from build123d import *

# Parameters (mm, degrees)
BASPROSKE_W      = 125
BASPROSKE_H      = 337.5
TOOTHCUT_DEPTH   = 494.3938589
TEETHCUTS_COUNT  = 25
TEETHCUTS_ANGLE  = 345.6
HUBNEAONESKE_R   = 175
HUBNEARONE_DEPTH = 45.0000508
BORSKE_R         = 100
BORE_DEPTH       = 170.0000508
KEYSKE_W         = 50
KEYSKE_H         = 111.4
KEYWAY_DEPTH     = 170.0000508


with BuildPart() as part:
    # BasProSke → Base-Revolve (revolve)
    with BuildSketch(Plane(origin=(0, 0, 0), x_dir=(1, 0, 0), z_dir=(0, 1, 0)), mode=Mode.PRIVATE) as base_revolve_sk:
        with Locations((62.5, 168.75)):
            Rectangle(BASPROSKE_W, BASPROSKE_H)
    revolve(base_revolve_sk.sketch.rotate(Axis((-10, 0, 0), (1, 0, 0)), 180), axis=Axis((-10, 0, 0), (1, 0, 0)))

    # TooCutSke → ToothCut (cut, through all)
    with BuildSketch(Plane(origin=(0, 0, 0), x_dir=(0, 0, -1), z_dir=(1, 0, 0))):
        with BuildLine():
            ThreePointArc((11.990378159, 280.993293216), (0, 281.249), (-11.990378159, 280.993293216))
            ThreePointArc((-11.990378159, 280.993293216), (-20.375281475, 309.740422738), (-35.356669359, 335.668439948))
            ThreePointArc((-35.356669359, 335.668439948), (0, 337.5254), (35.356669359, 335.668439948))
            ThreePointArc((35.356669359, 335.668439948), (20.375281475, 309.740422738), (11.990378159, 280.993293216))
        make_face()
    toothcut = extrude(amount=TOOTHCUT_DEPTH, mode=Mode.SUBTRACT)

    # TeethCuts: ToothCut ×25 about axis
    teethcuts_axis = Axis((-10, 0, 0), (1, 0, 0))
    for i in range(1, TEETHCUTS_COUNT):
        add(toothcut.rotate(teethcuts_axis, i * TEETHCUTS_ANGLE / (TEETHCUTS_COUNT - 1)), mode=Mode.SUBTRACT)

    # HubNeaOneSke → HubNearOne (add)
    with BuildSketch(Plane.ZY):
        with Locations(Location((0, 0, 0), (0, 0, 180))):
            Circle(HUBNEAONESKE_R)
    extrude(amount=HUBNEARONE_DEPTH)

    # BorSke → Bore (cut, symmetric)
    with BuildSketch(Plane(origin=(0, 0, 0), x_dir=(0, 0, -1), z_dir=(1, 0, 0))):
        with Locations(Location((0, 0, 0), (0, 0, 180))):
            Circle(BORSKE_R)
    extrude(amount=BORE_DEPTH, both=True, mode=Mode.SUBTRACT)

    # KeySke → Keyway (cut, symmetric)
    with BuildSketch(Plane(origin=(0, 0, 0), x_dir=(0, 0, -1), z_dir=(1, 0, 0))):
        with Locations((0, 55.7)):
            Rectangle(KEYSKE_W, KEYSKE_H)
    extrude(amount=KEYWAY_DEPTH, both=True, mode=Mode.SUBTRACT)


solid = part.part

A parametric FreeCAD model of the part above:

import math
import FreeCAD as App
import Part
import Sketcher

V = App.Vector


def add_polygon(sketch, points):
    """Adds a closed chain of lines whose ends are joined by coincident constraints."""
    first, n = sketch.GeometryCount, len(points)
    for a, b in zip(points, points[1:] + points[:1]):
        sketch.addGeometry(Part.LineSegment(App.Vector(*a, 0), App.Vector(*b, 0)), False)
    for i in range(n):
        sketch.addConstraint(Sketcher.Constraint("Coincident", first + i, 2, first + (i + 1) % n, 1))

doc = App.newDocument("Part")
body = doc.addObject("PartDesign::Body", "Body")

# Sketch on XZ plane
sketch1 = doc.addObject("Sketcher::SketchObject", "Sketch")
body.addObject(sketch1)
sketch1.AttachmentSupport = (doc.XZ_Plane, [""])
sketch1.MapMode = "FlatFace"
add_polygon(sketch1, [(0, -337.5), (0, 0), (125, 0), (125, -337.5)])  # lines 0-3
sketch1.addConstraint([
    Sketcher.Constraint("Vertical", 0),
    Sketcher.Constraint("Horizontal", 1),
    Sketcher.Constraint("Vertical", 2),
    Sketcher.Constraint("Horizontal", 3),
    Sketcher.Constraint("Coincident", 0, 2, -1, 1),
    Sketcher.Constraint("DistanceX", 1, 1, 1, 2, 125.0),
    Sketcher.Constraint("DistanceY", 0, 1, 0, 2, 337.5),
])
revolution = doc.addObject("PartDesign::Revolution", "Revolution")
body.addObject(revolution)
revolution.Profile = sketch1
revolution.ReferenceAxis = (sketch1, ["H_Axis"])
revolution.Angle = 360

# Sketch on YZ plane
sketch2 = doc.addObject("Sketcher::SketchObject", "Sketch001")
body.addObject(sketch2)
sketch2.AttachmentSupport = (doc.YZ_Plane, [""])
sketch2.MapMode = "FlatFace"
sketch2.addGeometry([
    Part.ArcOfCircle(Part.Circle(V(0, 0, 0), V(0, 0, 1), 281.249), math.radians(-2.443409), math.radians(2.443409)),
    Part.ArcOfCircle(Part.Circle(V(260.617605, -135.318523, 0), V(0, 0, 1), 125), math.radians(53.100971), math.radians(80.61861)),
    Part.ArcOfCircle(Part.Circle(V(0, 0, 0), V(0, 0, 1), 337.5254), math.radians(-6.012914), math.radians(6.012914)),
    Part.ArcOfCircle(Part.Circle(V(260.617605, 135.318523, 0), V(0, 0, 1), 125), math.radians(-80.61861), math.radians(-53.100971)),
], False)
sketch2.addConstraint([
    Sketcher.Constraint("Coincident", 0, 1, 1, 2),
    Sketcher.Constraint("Coincident", 1, 1, 2, 1),
    Sketcher.Constraint("Coincident", 2, 2, 3, 2),
    Sketcher.Constraint("Coincident", 3, 1, 0, 2),
    Sketcher.Constraint("Coincident", 0, 3, -1, 1),
    Sketcher.Constraint("Coincident", 2, 3, -1, 1),
    Sketcher.Constraint("Equal", 1, 3),
    Sketcher.Constraint("Symmetric", 1, 3, 3, 3, -1),
    Sketcher.Constraint("Radius", 1, 125.0),
    Sketcher.Constraint("Radius", 0, 281.249),
    Sketcher.Constraint("Radius", 2, 337.5254),
    Sketcher.Constraint("DistanceY", 0, 1, 3, 3, 147.308901),
    Sketcher.Constraint("DistanceY", 1, 1, -1, 1, 35.356669),
])
pocket1 = doc.addObject("PartDesign::Pocket", "Pocket")
body.addObject(pocket1)
pocket1.Profile = sketch2
pocket1.Type = "ThroughAll"
pocket1.Reversed = True
doc.recompute()

polarpattern = doc.addObject("PartDesign::PolarPattern", "PolarPattern")
body.addObject(polarpattern)
polarpattern.Originals = [pocket1]
polarpattern.Axis = (doc.X_Axis, [""])
polarpattern.Angle = 360
polarpattern.Occurrences = 25
body.Tip = polarpattern

# Sketch on YZ plane
sketch3 = doc.addObject("Sketcher::SketchObject", "Sketch002")
body.addObject(sketch3)
sketch3.AttachmentSupport = (doc.YZ_Plane, [""])
sketch3.MapMode = "FlatFace"
sketch3.addGeometry(Part.Circle(V(0, 0, 0), V(0, 0, 1), 175), False)
sketch3.addConstraint([
    Sketcher.Constraint("Coincident", 0, 3, -1, 1),
    Sketcher.Constraint("Diameter", 0, 350.0),
])
pad1 = doc.addObject("PartDesign::Pad", "Pad")
body.addObject(pad1)
pad1.Profile = sketch3
pad1.Length = 45.000051
pad1.Reversed = True

# Sketch on YZ plane
sketch4 = doc.addObject("Sketcher::SketchObject", "Sketch003")
body.addObject(sketch4)
sketch4.AttachmentSupport = (doc.YZ_Plane, [""])
sketch4.MapMode = "FlatFace"
sketch4.addGeometry(Part.Circle(V(0, 0, 0), V(0, 0, 1), 100), False)
sketch4.addConstraint([
    Sketcher.Constraint("Coincident", 0, 3, -1, 1),
    Sketcher.Constraint("Diameter", 0, 200.0),
])
pocket2 = doc.addObject("PartDesign::Pocket", "Pocket001")
body.addObject(pocket2)
pocket2.Profile = sketch4
pocket2.Length = 340.000102
pocket2.Midplane = True

# Sketch on YZ plane
sketch5 = doc.addObject("Sketcher::SketchObject", "Sketch004")
body.addObject(sketch5)
sketch5.AttachmentSupport = (doc.YZ_Plane, [""])
sketch5.MapMode = "FlatFace"
add_polygon(sketch5, [(111.4, 25), (0, 25), (0, -25), (111.4, -25)])  # lines 0-3
sketch5.addConstraint([
    Sketcher.Constraint("Horizontal", 0),
    Sketcher.Constraint("Vertical", 1),
    Sketcher.Constraint("Horizontal", 2),
    Sketcher.Constraint("Vertical", 3),
    Sketcher.Constraint("Symmetric", 0, 2, 1, 2, -1, 1),
    Sketcher.Constraint("DistanceY", 1, 2, 1, 1, 50.0),
    Sketcher.Constraint("DistanceX", 0, 2, 0, 1, 111.4),
])
pocket3 = doc.addObject("PartDesign::Pocket", "Pocket002")
body.addObject(pocket3)
pocket3.Profile = sketch5
pocket3.Length = 340.000102
pocket3.Midplane = True

doc.recompute()
